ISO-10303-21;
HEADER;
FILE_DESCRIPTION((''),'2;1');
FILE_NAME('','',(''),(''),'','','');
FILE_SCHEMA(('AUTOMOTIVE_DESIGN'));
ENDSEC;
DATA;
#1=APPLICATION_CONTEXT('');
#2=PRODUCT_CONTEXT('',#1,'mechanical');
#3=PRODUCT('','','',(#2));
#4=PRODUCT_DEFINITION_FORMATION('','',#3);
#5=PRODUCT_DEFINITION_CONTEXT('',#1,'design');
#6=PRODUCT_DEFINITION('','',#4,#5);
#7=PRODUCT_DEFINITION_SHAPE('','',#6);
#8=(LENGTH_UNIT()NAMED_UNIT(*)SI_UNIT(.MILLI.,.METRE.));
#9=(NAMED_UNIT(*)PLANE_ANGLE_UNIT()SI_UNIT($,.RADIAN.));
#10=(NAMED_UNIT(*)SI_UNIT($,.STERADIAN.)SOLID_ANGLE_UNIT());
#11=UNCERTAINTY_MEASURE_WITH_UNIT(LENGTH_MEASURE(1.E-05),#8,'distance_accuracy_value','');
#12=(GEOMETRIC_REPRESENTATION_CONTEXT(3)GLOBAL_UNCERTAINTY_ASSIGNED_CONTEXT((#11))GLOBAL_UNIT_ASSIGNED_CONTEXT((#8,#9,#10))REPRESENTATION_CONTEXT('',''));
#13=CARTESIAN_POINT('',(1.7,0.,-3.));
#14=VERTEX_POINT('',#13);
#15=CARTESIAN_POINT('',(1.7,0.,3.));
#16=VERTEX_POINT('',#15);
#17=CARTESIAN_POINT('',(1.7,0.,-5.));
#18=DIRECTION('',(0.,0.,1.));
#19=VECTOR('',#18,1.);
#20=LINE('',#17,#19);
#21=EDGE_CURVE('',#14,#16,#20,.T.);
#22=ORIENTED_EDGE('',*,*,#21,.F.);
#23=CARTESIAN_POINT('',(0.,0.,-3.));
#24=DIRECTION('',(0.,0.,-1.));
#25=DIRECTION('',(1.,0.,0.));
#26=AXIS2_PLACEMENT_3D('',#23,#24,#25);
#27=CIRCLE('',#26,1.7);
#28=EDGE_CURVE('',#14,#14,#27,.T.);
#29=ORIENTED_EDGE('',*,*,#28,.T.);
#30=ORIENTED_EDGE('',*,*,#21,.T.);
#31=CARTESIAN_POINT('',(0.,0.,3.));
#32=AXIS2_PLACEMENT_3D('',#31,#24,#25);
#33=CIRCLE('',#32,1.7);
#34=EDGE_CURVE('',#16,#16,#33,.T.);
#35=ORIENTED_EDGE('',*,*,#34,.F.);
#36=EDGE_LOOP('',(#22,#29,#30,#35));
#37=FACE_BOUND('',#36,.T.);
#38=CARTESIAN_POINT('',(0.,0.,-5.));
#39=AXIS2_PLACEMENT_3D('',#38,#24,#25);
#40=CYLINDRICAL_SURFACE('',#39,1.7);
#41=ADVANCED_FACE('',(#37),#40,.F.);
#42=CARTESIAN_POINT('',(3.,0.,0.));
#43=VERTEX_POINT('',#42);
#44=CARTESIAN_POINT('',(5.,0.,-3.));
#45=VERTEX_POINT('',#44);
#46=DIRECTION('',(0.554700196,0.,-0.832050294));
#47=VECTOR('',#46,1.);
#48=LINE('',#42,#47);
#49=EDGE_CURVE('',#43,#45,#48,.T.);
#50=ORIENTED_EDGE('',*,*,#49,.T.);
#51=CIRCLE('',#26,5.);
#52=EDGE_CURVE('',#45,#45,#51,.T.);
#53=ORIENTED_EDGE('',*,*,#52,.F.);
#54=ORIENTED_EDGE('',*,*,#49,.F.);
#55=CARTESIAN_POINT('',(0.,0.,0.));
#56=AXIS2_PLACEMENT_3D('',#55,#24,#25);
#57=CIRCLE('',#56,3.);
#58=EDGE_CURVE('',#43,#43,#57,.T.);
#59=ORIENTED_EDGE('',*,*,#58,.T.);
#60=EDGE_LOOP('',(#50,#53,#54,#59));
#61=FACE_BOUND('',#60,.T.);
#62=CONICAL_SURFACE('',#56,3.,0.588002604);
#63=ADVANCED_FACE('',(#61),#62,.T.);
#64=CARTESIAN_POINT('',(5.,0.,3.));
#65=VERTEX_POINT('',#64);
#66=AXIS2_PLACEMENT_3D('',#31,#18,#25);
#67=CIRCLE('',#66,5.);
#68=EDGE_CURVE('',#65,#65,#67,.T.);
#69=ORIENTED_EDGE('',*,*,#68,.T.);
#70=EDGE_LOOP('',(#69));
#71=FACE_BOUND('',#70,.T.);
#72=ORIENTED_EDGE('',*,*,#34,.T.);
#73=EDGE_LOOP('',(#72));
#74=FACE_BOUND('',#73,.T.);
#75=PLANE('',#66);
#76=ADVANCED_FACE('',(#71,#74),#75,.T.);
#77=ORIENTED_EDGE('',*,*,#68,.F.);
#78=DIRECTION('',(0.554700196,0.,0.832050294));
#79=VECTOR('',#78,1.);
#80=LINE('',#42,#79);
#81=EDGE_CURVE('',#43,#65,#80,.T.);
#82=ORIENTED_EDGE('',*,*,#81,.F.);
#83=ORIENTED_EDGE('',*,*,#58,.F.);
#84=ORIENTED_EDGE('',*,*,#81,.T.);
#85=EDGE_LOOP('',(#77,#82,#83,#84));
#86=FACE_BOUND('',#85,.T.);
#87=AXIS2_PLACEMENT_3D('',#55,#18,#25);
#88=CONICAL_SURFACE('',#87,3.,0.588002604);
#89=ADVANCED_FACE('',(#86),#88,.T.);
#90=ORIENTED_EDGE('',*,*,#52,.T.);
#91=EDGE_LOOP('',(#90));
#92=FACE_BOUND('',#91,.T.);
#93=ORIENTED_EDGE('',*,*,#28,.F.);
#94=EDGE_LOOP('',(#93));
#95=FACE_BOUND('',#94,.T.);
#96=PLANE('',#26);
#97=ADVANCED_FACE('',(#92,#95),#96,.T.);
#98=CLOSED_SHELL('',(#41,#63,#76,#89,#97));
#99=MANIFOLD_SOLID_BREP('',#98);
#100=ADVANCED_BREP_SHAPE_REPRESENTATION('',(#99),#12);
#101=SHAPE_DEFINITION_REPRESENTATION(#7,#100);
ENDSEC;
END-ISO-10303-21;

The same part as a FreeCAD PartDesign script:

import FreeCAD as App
import Part
import Sketcher

doc = App.newDocument("Part")
body = doc.addObject("PartDesign::Body", "Body")

# Sketch on XY plane
sketch1 = body.newObject("Sketcher::SketchObject", "Sketch")
sketch1.AttachmentSupport = (doc.getObject("XY_Plane"), [""])
sketch1.MapMode = "FlatFace"
sketch1.AttachmentOffset = App.Placement(App.Vector(0, 0, -5), App.Rotation())
sketch1.addGeometry(Part.Circle(App.Vector(0, 0, 0), App.Vector(0, 0, 1), 1.7), False)
sketch1.addConstraint([
    Sketcher.Constraint("Coincident", 0, 3, -1, 1),
    Sketcher.Constraint("Diameter", 0, 3.4),
])
pad1 = body.newObject("PartDesign::Pad", "Pad")
pad1.Profile = sketch1
pad1.Length = 10
body2 = doc.addObject("PartDesign::Body", "Body001")

# Sketch on XZ plane
sketch2 = body2.newObject("Sketcher::SketchObject", "Sketch001")
sketch2.AttachmentSupport = (doc.getObject("XZ_Plane001"), [""])
sketch2.MapMode = "FlatFace"
sketch2.addGeometry([
    Part.LineSegment(App.Vector(0, 0, 0), App.Vector(3, 0, 0)),
    Part.LineSegment(App.Vector(3, 0, 0), App.Vector(5, 3, 0)),
    Part.LineSegment(App.Vector(5, 3, 0), App.Vector(0, 3, 0)),
    Part.LineSegment(App.Vector(0, 3, 0), App.Vector(0, 0, 0)),
], False)
sketch2.addConstraint([
    Sketcher.Constraint("Coincident", 0, 2, 1, 1),
    Sketcher.Constraint("Coincident", 1, 2, 2, 1),
    Sketcher.Constraint("Coincident", 2, 2, 3, 1),
    Sketcher.Constraint("Coincident", 3, 2, 0, 1),
    Sketcher.Constraint("Horizontal", 0),
    Sketcher.Constraint("Horizontal", 2),
    Sketcher.Constraint("Vertical", 3),
    Sketcher.Constraint("Coincident", 3, 2, -1, 1),
    Sketcher.Constraint("Equal", 0, 3),
    Sketcher.Constraint("DistanceX", 0, 1, 0, 2, 3.0),
    Sketcher.Constraint("DistanceX", 2, 2, 2, 1, 5.0),
])
revolution = body2.newObject("PartDesign::Revolution", "Revolution")
revolution.Profile = sketch2
revolution.ReferenceAxis = (sketch2, ["V_Axis"])
revolution.Angle = 360
body3 = doc.addObject("PartDesign::Body", "Body002")

# Sketch on XZ plane
sketch3 = body3.newObject("Sketcher::SketchObject", "Sketch002")
sketch3.AttachmentSupport = (doc.getObject("XZ_Plane002"), [""])
sketch3.MapMode = "FlatFace"
sketch3.addGeometry([
    Part.LineSegment(App.Vector(0, 0, 0), App.Vector(3, 0, 0)),
    Part.LineSegment(App.Vector(3, 0, 0), App.Vector(5, -3, 0)),
    Part.LineSegment(App.Vector(5, -3, 0), App.Vector(0, -3, 0)),
    Part.LineSegment(App.Vector(0, -3, 0), App.Vector(0, 0, 0)),
], False)
sketch3.addConstraint([
    Sketcher.Constraint("Coincident", 0, 2, 1, 1),
    Sketcher.Constraint("Coincident", 1, 2, 2, 1),
    Sketcher.Constraint("Coincident", 2, 2, 3, 1),
    Sketcher.Constraint("Coincident", 3, 2, 0, 1),
    Sketcher.Constraint("Horizontal", 0),
    Sketcher.Constraint("Horizontal", 2),
    Sketcher.Constraint("Vertical", 3),
    Sketcher.Constraint("Coincident", 3, 2, -1, 1),
    Sketcher.Constraint("Equal", 0, 3),
    Sketcher.Constraint("DistanceX", 0, 1, 0, 2, 3.0),
    Sketcher.Constraint("DistanceX", 2, 2, 2, 1, 5.0),
])
revolution2 = body3.newObject("PartDesign::Revolution", "Revolution001")
revolution2.Profile = sketch3
revolution2.ReferenceAxis = (sketch3, ["V_Axis"])
revolution2.Angle = 360
doc.recompute()

boolean = body3.newObject("PartDesign::Boolean", "Boolean")
boolean.Type = "Fuse"
boolean.addObjects([body2])
doc.recompute()

boolean2 = body3.newObject("PartDesign::Boolean", "Boolean001")
boolean2.Type = "Cut"
boolean2.addObjects([body])

doc.recompute()
